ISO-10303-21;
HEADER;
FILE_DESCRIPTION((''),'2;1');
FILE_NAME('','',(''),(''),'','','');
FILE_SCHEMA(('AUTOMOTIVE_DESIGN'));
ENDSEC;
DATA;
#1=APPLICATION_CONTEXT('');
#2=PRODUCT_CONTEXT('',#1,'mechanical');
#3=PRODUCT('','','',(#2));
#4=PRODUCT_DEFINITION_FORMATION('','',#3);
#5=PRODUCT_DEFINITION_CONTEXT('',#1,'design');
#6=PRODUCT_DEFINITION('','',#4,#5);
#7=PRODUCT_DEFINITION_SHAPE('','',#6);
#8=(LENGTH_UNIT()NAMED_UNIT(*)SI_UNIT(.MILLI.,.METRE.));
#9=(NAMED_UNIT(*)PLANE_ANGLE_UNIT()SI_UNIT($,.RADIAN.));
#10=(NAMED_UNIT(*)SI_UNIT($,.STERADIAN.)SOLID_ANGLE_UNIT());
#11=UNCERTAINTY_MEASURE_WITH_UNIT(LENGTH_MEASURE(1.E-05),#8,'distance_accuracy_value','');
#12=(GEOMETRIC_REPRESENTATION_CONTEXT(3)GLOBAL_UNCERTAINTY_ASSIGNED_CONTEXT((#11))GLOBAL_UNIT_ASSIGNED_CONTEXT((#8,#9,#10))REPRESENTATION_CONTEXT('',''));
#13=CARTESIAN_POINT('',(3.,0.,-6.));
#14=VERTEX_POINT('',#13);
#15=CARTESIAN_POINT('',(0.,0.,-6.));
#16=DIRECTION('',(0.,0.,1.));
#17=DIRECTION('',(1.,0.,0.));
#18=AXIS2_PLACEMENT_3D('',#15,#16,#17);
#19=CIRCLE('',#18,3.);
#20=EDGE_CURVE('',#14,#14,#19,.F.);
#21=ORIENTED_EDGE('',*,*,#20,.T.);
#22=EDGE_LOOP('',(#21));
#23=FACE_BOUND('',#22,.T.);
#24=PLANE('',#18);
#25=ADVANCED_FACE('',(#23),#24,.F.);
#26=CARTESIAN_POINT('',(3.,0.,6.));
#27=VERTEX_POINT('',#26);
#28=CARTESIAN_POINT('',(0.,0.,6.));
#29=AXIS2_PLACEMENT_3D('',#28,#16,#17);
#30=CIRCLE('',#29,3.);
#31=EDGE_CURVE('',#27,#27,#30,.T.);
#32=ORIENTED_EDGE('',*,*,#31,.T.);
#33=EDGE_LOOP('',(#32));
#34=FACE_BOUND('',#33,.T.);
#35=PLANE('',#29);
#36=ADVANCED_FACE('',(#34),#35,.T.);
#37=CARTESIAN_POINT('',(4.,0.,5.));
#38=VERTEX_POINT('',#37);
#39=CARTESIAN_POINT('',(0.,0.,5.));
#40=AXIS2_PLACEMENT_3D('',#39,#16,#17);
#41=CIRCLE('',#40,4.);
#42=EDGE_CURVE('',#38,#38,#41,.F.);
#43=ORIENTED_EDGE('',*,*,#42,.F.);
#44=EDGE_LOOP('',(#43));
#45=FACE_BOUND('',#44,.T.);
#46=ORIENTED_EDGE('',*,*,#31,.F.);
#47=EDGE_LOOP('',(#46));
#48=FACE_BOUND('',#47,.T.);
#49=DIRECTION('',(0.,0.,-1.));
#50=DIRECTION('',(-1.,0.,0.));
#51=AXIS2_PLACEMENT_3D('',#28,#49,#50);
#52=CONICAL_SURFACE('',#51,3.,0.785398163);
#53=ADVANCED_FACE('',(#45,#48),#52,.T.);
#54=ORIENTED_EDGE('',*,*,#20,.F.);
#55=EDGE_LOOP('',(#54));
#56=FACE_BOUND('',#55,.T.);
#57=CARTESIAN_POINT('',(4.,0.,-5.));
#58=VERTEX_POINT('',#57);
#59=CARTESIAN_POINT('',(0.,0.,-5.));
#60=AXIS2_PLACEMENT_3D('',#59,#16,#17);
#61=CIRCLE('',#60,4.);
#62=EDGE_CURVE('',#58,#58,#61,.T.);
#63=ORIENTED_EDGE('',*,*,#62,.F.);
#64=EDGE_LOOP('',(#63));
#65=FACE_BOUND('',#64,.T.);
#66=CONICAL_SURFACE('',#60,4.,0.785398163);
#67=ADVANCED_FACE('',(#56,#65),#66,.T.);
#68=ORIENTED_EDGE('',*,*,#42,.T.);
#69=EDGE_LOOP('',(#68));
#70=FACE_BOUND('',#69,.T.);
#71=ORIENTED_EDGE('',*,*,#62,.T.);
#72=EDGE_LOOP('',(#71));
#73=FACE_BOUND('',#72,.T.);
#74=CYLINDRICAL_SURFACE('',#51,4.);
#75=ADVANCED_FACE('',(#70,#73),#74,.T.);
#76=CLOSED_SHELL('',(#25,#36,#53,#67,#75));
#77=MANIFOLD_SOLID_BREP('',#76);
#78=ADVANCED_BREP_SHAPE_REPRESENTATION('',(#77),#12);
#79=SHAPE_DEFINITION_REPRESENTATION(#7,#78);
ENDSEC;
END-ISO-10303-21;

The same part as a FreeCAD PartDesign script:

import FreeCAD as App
import Part
import Sketcher

V = App.Vector
Q = App.Units.Quantity


def edges_at(feature, points):
    """Names of the edges that pass closest to the given points."""
    edges = feature.Shape.Edges
    near = lambda p: min(range(len(edges)), key=lambda i: edges[i].distToShape(Part.Vertex(*p))[0])
    return sorted({f"Edge{near(p) + 1}" for p in points})

doc = App.newDocument("Part")
params = doc.addObject("Spreadsheet::Sheet", "Params")
for row, (alias, value) in enumerate([
    ("sketch1_diameter", "8 mm"),
    ("pad1_length", "12 mm"),
    ("chamfer_size", "1 mm"),
], start=1):
    params.set(f"A{row}", alias)
    params.set(f"B{row}", "=" + value)
    params.setAlias(f"B{row}", alias)

body = doc.addObject("PartDesign::Body", "Body")

sketch1 = body.newObject("Sketcher::SketchObject", "Sketch")
sketch1.AttachmentSupport = (doc.getObject("XY_Plane"), [""])
sketch1.MapMode = "FlatFace"
sketch1.addGeometry(Part.Circle(V(0, 0, 0), V(0, 0, 1), 4), False)
sketch1.addConstraint([
    Sketcher.Constraint("Coincident", 0, 3, -1, 1),
    Sketcher.Constraint("Diameter", 0, Q("8 mm")),
])
sketch1.setExpression("Constraints[1]", "Params.sketch1_diameter")
pad1 = body.newObject("PartDesign::Pad", "Pad")
pad1.Profile = sketch1
pad1.setExpression("Length", "Params.pad1_length")
pad1.Midplane = True
doc.recompute()

chamfer = body.newObject("PartDesign::Chamfer", "Chamfer")
chamfer.Base = (pad1, edges_at(pad1, [(-4, 0, -6), (-4, 0, 6)]))
chamfer.setExpression("Size", "Params.chamfer_size")

doc.recompute()
